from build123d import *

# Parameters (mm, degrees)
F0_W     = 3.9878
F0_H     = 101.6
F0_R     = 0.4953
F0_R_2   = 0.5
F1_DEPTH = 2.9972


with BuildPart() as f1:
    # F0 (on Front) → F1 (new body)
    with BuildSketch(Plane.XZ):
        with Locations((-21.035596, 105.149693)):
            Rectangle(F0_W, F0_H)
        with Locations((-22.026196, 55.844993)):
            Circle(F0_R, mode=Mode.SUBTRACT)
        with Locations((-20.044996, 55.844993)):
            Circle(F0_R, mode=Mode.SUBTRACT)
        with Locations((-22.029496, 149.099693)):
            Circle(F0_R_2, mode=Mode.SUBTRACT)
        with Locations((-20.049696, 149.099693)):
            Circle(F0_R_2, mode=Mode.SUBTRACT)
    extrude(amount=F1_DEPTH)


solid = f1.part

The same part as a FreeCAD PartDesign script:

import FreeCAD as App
import Part
import Sketcher
from FreeCAD import Vector
Q = App.Units.Quantity


def add_polygon(sketch, points):
    """Adds a closed chain of lines whose ends are joined by coincident constraints."""
    first, n = sketch.GeometryCount, len(points)
    for a, b in zip(points, points[1:] + points[:1]):
        sketch.addGeometry(Part.LineSegment(App.Vector(*a, 0), App.Vector(*b, 0)), False)
    for i in range(n):
        sketch.addConstraint(Sketcher.Constraint("Coincident", first + i, 2, first + (i + 1) % n, 1))

doc = App.newDocument("Part")
body = doc.addObject("PartDesign::Body", "Body")

# Sketch on XZ plane
sketch1 = doc.addObject("Sketcher::SketchObject", "Sketch")
body.addObject(sketch1)
sketch1.AttachmentSupport = (doc.XZ_Plane, [""])
sketch1.MapMode = "FlatFace"
add_polygon(sketch1, [(-23.03, 155.95), (-23.03, 54.35), (-19.04, 54.35), (-19.04, 155.95)])  # lines 0-3
sketch1.addGeometry(Part.Circle(Vector(-22.03, 55.84, 0), Vector(0, 0, 1), 0.5), False)  # 4
sketch1.addGeometry(Part.Circle(Vector(-20.04, 55.84, 0), Vector(0, 0, 1), 0.5), False)  # 5
sketch1.addGeometry(Part.Circle(Vector(-22.03, 149.1, 0), Vector(0, 0, 1), 0.5), False)  # 6
sketch1.addGeometry(Part.Circle(Vector(-20.05, 149.1, 0), Vector(0, 0, 1), 0.5), False)  # 7
sketch1.addConstraint([
    Sketcher.Constraint("Vertical", 0),
    Sketcher.Constraint("Horizontal", 1),
    Sketcher.Constraint("Vertical", 2),
    Sketcher.Constraint("Horizontal", 3),
    Sketcher.Constraint("Equal", 4, 5),
    Sketcher.Constraint("Equal", 6, 7),
    Sketcher.Constraint("Horizontal", 4, 3, 5, 3),
    Sketcher.Constraint("Horizontal", 6, 3, 7, 3),
    Sketcher.Constraint("DistanceY", 0, 2, 0, 1, Q("4 in")),
    Sketcher.Constraint("Diameter", 4, Q("0.039 in")),
    Sketcher.Constraint("Diameter", 6, 1.0),
    Sketcher.Constraint("DistanceX", 1, 1, 1, 2, Q("0.157 in")),
    Sketcher.Constraint("DistanceX", 4, 3, 5, 3, Q("0.078 in")),
    Sketcher.Constraint("DistanceX", 0, 2, 4, 3, Q("0.0395 in")),
    Sketcher.Constraint("DistanceX", 6, 3, 4, 3, 0.0033),
    Sketcher.Constraint("DistanceY", 4, 3, 6, 3, 93.2547),
    Sketcher.Constraint("DistanceX", 6, 3, 7, 3, 1.9798),
    Sketcher.Constraint("DistanceY", 0, 2, 4, 3, 1.4953),
    Sketcher.Constraint("DistanceX", 4, 3, -1, 1, 22.026196),
    Sketcher.Constraint("DistanceY", -1, 1, 4, 3, 55.844993),
])
pad1 = doc.addObject("PartDesign::Pad", "Pad")
body.addObject(pad1)
pad1.Profile = sketch1
pad1.Length = Q("0.118 in")

doc.recompute()
